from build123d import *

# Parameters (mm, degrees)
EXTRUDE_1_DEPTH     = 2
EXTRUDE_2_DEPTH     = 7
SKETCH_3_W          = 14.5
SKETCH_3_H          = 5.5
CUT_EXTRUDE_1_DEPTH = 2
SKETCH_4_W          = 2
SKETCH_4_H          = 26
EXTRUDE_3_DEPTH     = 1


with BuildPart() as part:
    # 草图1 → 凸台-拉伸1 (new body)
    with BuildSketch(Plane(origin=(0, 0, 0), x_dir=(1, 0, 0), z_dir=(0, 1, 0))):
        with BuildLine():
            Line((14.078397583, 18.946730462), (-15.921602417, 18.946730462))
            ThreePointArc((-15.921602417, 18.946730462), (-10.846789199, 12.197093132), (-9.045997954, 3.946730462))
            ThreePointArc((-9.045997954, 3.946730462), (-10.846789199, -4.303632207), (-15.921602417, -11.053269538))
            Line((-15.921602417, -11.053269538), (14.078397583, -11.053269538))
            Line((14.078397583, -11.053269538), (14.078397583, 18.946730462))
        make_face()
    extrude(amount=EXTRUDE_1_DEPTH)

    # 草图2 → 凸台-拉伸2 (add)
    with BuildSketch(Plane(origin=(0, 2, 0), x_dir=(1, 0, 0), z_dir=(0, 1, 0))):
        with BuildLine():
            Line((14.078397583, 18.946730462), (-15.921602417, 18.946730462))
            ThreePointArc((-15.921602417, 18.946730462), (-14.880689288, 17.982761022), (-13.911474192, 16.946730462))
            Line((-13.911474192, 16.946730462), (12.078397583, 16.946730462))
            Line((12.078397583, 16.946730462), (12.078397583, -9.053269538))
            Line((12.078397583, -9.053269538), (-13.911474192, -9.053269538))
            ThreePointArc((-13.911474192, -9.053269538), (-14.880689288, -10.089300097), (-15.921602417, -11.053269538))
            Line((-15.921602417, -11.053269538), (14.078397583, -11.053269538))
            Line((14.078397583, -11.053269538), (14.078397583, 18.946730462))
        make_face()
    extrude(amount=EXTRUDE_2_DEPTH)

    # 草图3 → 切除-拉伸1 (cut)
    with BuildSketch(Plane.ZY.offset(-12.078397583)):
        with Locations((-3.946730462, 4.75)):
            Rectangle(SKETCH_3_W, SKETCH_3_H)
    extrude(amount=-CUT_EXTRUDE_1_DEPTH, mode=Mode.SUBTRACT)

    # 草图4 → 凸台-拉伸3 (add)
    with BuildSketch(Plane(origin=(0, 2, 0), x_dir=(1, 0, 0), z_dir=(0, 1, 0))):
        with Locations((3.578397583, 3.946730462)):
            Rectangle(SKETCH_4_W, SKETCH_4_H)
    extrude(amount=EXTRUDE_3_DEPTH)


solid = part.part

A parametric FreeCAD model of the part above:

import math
import FreeCAD as App
import Part
import Sketcher
from FreeCAD import Vector


def add_polygon(sketch, points):
    """Adds a closed chain of lines whose ends are joined by coincident constraints."""
    first, n = sketch.GeometryCount, len(points)
    for a, b in zip(points, points[1:] + points[:1]):
        sketch.addGeometry(Part.LineSegment(App.Vector(*a, 0), App.Vector(*b, 0)), False)
    for i in range(n):
        sketch.addConstraint(Sketcher.Constraint("Coincident", first + i, 2, first + (i + 1) % n, 1))

doc = App.newDocument("Part")
body = doc.addObject("PartDesign::Body", "Body")

sketch1 = doc.addObject("Sketcher::SketchObject", "Sketch")
body.addObject(sketch1)
sketch1.AttachmentSupport = (doc.XZ_Plane, [""])
sketch1.MapMode = "FlatFace"
sketch1.addGeometry([
    Part.LineSegment(Vector(14.078398, -18.94673, 0), Vector(-15.921602, -18.94673, 0)),
    Part.ArcOfCircle(Part.Circle(Vector(-28.845998, -3.94673, 0), Vector(0, 0, 1), 19.8), math.radians(-49.250946), math.radians(0)),
    Part.ArcOfCircle(Part.Circle(Vector(-28.845998, -3.94673, 0), Vector(0, 0, 1), 19.8), math.radians(0), math.radians(49.250946)),
    Part.LineSegment(Vector(-15.921602, 11.05327, 0), Vector(14.078398, 11.05327, 0)),
    Part.LineSegment(Vector(14.078398, 11.05327, 0), Vector(14.078398, -18.94673, 0)),
], False)
sketch1.addConstraint([
    Sketcher.Constraint("Coincident", 0, 2, 1, 1),
    Sketcher.Constraint("Tangent", 1, 2, 2, 1),
    Sketcher.Constraint("Coincident", 2, 2, 3, 1),
    Sketcher.Constraint("Coincident", 3, 2, 4, 1),
    Sketcher.Constraint("Coincident", 4, 2, 0, 1),
    Sketcher.Constraint("Horizontal", 0),
    Sketcher.Constraint("Horizontal", 3),
    Sketcher.Constraint("Vertical", 4),
    Sketcher.Constraint("Equal", 1, 2),
    Sketcher.Constraint("Horizontal", 2, 3, 1, 2),
    Sketcher.Constraint("Vertical", 0, 2, 2, 2),
    Sketcher.Constraint("Equal", 3, 4),
    Sketcher.Constraint("Radius", 1, 19.8),
    Sketcher.Constraint("DistanceX", 0, 2, 0, 1, 30.0),
    Sketcher.Constraint("DistanceY", 1, 3, -1, 1, 3.94673),
    Sketcher.Constraint("DistanceX", 1, 3, -1, 1, 28.845998),
])
pad1 = doc.addObject("PartDesign::Pad", "Pad")
body.addObject(pad1)
pad1.Profile = sketch1
pad1.Length = 2
pad1.Reversed = True

sketch2 = doc.addObject("Sketcher::SketchObject", "Sketch001")
body.addObject(sketch2)
sketch2.AttachmentSupport = (doc.XZ_Plane, [""])
sketch2.MapMode = "FlatFace"
sketch2.AttachmentOffset = App.Placement(Vector(0, 0, -2), App.Rotation())
sketch2.addGeometry([
    Part.LineSegment(Vector(14.078398, -18.94673, 0), Vector(-15.921602, -18.94673, 0)),
    Part.ArcOfCircle(Part.Circle(Vector(-28.845998, -3.946731, 0), Vector(0, 0, 1), 19.8), math.radians(-49.250946), math.radians(-41.038473)),
    Part.LineSegment(Vector(-13.911474, -16.94673, 0), Vector(12.078398, -16.94673, 0)),
    Part.LineSegment(Vector(12.078398, -16.94673, 0), Vector(12.078398, 9.05327, 0)),
    Part.LineSegment(Vector(12.078398, 9.05327, 0), Vector(-13.911474, 9.05327, 0)),
    Part.ArcOfCircle(Part.Circle(Vector(-28.845998, -3.946731, 0), Vector(0, 0, 1), 19.8), math.radians(41.038473), math.radians(49.250946)),
    Part.LineSegment(Vector(-15.921602, 11.05327, 0), Vector(14.078398, 11.05327, 0)),
    Part.LineSegment(Vector(14.078398, 11.05327, 0), Vector(14.078398, -18.94673, 0)),
], False)
sketch2.addConstraint([
    Sketcher.Constraint("Coincident", 0, 2, 1, 1),
    Sketcher.Constraint("Coincident", 1, 2, 2, 1),
    Sketcher.Constraint("Coincident", 2, 2, 3, 1),
    Sketcher.Constraint("Coincident", 3, 2, 4, 1),
    Sketcher.Constraint("Coincident", 4, 2, 5, 1),
    Sketcher.Constraint("Coincident", 5, 2, 6, 1),
    Sketcher.Constraint("Coincident", 6, 2, 7, 1),
    Sketcher.Constraint("Coincident", 7, 2, 0, 1),
    Sketcher.Constraint("Horizontal", 0),
    Sketcher.Constraint("Horizontal", 2),
    Sketcher.Constraint("Vertical", 3),
    Sketcher.Constraint("Horizontal", 4),
    Sketcher.Constraint("Horizontal", 6),
    Sketcher.Constraint("Vertical", 7),
    Sketcher.Constraint("Coincident", 5, 3, 1, 3),
    Sketcher.Constraint("Equal", 1, 5),
    Sketcher.Constraint("Vertical", 1, 2, 4, 2),
    Sketcher.Constraint("Vertical", 0, 2, 5, 2),
    Sketcher.Constraint("Equal", 6, 7),
    Sketcher.Constraint("Radius", 1, 19.8),
    Sketcher.Constraint("DistanceX", 0, 2, 0, 1, 30.0),
    Sketcher.Constraint("DistanceY", 3, 1, 3, 2, 26.0),
    Sketcher.Constraint("DistanceX", 0, 2, 2, 2, 28.0),
    Sketcher.Constraint("DistanceX", 5, 3, -1, 1, 28.845998),
    Sketcher.Constraint("DistanceY", 1, 3, -1, 1, 3.946731),
])
pad2 = doc.addObject("PartDesign::Pad", "Pad001")
body.addObject(pad2)
pad2.Profile = sketch2
pad2.Length = 7
pad2.Reversed = True

sketch3 = doc.addObject("Sketcher::SketchObject", "Sketch002")
body.addObject(sketch3)
sketch3.AttachmentSupport = (doc.YZ_Plane, [""])
sketch3.MapMode = "FlatFace"
sketch3.AttachmentOffset = App.Placement(Vector(0, 0, 12.078398), App.Rotation())
add_polygon(sketch3, [(7.5, -11.19673), (2, -11.19673), (2, 3.30327), (7.5, 3.30327)])
sketch3.addConstraint([
    Sketcher.Constraint("Horizontal", 0),
    Sketcher.Constraint("Vertical", 1),
    Sketcher.Constraint("Horizontal", 2),
    Sketcher.Constraint("Vertical", 3),
    Sketcher.Constraint("DistanceX", 0, 2, 0, 1, 5.5),
    Sketcher.Constraint("DistanceY", 1, 1, 1, 2, 14.5),
    Sketcher.Constraint("DistanceX", -1, 1, 0, 2, 2.0),
    Sketcher.Constraint("DistanceY", 0, 2, -1, 1, 11.19673),
])
pocket1 = doc.addObject("PartDesign::Pocket", "Pocket")
body.addObject(pocket1)
pocket1.Profile = sketch3
pocket1.Length = 2
pocket1.Reversed = True

sketch4 = doc.addObject("Sketcher::SketchObject", "Sketch003")
body.addObject(sketch4)
sketch4.AttachmentSupport = (doc.XZ_Plane, [""])
sketch4.MapMode = "FlatFace"
sketch4.AttachmentOffset = App.Placement(Vector(0, 0, -2), App.Rotation())
add_polygon(sketch4, [(2.578398, -16.94673), (2.578398, 9.05327), (4.578398, 9.05327), (4.578398, -16.94673)])
sketch4.addConstraint([
    Sketcher.Constraint("Vertical", 0),
    Sketcher.Constraint("Horizontal", 1),
    Sketcher.Constraint("Vertical", 2),
    Sketcher.Constraint("Horizontal", 3),
    Sketcher.Constraint("DistanceX", 1, 1, 1, 2, 2.0),
    Sketcher.Constraint("DistanceY", 0, 1, 0, 2, 26.0),
    Sketcher.Constraint("DistanceY", -1, 1, 0, 2, 9.05327),
    Sketcher.Constraint("DistanceX", -1, 1, 0, 2, 2.578398),
])
pad3 = doc.addObject("PartDesign::Pad", "Pad002")
body.addObject(pad3)
pad3.Profile = sketch4
pad3.Length = 1
pad3.Reversed = True

doc.recompute()
